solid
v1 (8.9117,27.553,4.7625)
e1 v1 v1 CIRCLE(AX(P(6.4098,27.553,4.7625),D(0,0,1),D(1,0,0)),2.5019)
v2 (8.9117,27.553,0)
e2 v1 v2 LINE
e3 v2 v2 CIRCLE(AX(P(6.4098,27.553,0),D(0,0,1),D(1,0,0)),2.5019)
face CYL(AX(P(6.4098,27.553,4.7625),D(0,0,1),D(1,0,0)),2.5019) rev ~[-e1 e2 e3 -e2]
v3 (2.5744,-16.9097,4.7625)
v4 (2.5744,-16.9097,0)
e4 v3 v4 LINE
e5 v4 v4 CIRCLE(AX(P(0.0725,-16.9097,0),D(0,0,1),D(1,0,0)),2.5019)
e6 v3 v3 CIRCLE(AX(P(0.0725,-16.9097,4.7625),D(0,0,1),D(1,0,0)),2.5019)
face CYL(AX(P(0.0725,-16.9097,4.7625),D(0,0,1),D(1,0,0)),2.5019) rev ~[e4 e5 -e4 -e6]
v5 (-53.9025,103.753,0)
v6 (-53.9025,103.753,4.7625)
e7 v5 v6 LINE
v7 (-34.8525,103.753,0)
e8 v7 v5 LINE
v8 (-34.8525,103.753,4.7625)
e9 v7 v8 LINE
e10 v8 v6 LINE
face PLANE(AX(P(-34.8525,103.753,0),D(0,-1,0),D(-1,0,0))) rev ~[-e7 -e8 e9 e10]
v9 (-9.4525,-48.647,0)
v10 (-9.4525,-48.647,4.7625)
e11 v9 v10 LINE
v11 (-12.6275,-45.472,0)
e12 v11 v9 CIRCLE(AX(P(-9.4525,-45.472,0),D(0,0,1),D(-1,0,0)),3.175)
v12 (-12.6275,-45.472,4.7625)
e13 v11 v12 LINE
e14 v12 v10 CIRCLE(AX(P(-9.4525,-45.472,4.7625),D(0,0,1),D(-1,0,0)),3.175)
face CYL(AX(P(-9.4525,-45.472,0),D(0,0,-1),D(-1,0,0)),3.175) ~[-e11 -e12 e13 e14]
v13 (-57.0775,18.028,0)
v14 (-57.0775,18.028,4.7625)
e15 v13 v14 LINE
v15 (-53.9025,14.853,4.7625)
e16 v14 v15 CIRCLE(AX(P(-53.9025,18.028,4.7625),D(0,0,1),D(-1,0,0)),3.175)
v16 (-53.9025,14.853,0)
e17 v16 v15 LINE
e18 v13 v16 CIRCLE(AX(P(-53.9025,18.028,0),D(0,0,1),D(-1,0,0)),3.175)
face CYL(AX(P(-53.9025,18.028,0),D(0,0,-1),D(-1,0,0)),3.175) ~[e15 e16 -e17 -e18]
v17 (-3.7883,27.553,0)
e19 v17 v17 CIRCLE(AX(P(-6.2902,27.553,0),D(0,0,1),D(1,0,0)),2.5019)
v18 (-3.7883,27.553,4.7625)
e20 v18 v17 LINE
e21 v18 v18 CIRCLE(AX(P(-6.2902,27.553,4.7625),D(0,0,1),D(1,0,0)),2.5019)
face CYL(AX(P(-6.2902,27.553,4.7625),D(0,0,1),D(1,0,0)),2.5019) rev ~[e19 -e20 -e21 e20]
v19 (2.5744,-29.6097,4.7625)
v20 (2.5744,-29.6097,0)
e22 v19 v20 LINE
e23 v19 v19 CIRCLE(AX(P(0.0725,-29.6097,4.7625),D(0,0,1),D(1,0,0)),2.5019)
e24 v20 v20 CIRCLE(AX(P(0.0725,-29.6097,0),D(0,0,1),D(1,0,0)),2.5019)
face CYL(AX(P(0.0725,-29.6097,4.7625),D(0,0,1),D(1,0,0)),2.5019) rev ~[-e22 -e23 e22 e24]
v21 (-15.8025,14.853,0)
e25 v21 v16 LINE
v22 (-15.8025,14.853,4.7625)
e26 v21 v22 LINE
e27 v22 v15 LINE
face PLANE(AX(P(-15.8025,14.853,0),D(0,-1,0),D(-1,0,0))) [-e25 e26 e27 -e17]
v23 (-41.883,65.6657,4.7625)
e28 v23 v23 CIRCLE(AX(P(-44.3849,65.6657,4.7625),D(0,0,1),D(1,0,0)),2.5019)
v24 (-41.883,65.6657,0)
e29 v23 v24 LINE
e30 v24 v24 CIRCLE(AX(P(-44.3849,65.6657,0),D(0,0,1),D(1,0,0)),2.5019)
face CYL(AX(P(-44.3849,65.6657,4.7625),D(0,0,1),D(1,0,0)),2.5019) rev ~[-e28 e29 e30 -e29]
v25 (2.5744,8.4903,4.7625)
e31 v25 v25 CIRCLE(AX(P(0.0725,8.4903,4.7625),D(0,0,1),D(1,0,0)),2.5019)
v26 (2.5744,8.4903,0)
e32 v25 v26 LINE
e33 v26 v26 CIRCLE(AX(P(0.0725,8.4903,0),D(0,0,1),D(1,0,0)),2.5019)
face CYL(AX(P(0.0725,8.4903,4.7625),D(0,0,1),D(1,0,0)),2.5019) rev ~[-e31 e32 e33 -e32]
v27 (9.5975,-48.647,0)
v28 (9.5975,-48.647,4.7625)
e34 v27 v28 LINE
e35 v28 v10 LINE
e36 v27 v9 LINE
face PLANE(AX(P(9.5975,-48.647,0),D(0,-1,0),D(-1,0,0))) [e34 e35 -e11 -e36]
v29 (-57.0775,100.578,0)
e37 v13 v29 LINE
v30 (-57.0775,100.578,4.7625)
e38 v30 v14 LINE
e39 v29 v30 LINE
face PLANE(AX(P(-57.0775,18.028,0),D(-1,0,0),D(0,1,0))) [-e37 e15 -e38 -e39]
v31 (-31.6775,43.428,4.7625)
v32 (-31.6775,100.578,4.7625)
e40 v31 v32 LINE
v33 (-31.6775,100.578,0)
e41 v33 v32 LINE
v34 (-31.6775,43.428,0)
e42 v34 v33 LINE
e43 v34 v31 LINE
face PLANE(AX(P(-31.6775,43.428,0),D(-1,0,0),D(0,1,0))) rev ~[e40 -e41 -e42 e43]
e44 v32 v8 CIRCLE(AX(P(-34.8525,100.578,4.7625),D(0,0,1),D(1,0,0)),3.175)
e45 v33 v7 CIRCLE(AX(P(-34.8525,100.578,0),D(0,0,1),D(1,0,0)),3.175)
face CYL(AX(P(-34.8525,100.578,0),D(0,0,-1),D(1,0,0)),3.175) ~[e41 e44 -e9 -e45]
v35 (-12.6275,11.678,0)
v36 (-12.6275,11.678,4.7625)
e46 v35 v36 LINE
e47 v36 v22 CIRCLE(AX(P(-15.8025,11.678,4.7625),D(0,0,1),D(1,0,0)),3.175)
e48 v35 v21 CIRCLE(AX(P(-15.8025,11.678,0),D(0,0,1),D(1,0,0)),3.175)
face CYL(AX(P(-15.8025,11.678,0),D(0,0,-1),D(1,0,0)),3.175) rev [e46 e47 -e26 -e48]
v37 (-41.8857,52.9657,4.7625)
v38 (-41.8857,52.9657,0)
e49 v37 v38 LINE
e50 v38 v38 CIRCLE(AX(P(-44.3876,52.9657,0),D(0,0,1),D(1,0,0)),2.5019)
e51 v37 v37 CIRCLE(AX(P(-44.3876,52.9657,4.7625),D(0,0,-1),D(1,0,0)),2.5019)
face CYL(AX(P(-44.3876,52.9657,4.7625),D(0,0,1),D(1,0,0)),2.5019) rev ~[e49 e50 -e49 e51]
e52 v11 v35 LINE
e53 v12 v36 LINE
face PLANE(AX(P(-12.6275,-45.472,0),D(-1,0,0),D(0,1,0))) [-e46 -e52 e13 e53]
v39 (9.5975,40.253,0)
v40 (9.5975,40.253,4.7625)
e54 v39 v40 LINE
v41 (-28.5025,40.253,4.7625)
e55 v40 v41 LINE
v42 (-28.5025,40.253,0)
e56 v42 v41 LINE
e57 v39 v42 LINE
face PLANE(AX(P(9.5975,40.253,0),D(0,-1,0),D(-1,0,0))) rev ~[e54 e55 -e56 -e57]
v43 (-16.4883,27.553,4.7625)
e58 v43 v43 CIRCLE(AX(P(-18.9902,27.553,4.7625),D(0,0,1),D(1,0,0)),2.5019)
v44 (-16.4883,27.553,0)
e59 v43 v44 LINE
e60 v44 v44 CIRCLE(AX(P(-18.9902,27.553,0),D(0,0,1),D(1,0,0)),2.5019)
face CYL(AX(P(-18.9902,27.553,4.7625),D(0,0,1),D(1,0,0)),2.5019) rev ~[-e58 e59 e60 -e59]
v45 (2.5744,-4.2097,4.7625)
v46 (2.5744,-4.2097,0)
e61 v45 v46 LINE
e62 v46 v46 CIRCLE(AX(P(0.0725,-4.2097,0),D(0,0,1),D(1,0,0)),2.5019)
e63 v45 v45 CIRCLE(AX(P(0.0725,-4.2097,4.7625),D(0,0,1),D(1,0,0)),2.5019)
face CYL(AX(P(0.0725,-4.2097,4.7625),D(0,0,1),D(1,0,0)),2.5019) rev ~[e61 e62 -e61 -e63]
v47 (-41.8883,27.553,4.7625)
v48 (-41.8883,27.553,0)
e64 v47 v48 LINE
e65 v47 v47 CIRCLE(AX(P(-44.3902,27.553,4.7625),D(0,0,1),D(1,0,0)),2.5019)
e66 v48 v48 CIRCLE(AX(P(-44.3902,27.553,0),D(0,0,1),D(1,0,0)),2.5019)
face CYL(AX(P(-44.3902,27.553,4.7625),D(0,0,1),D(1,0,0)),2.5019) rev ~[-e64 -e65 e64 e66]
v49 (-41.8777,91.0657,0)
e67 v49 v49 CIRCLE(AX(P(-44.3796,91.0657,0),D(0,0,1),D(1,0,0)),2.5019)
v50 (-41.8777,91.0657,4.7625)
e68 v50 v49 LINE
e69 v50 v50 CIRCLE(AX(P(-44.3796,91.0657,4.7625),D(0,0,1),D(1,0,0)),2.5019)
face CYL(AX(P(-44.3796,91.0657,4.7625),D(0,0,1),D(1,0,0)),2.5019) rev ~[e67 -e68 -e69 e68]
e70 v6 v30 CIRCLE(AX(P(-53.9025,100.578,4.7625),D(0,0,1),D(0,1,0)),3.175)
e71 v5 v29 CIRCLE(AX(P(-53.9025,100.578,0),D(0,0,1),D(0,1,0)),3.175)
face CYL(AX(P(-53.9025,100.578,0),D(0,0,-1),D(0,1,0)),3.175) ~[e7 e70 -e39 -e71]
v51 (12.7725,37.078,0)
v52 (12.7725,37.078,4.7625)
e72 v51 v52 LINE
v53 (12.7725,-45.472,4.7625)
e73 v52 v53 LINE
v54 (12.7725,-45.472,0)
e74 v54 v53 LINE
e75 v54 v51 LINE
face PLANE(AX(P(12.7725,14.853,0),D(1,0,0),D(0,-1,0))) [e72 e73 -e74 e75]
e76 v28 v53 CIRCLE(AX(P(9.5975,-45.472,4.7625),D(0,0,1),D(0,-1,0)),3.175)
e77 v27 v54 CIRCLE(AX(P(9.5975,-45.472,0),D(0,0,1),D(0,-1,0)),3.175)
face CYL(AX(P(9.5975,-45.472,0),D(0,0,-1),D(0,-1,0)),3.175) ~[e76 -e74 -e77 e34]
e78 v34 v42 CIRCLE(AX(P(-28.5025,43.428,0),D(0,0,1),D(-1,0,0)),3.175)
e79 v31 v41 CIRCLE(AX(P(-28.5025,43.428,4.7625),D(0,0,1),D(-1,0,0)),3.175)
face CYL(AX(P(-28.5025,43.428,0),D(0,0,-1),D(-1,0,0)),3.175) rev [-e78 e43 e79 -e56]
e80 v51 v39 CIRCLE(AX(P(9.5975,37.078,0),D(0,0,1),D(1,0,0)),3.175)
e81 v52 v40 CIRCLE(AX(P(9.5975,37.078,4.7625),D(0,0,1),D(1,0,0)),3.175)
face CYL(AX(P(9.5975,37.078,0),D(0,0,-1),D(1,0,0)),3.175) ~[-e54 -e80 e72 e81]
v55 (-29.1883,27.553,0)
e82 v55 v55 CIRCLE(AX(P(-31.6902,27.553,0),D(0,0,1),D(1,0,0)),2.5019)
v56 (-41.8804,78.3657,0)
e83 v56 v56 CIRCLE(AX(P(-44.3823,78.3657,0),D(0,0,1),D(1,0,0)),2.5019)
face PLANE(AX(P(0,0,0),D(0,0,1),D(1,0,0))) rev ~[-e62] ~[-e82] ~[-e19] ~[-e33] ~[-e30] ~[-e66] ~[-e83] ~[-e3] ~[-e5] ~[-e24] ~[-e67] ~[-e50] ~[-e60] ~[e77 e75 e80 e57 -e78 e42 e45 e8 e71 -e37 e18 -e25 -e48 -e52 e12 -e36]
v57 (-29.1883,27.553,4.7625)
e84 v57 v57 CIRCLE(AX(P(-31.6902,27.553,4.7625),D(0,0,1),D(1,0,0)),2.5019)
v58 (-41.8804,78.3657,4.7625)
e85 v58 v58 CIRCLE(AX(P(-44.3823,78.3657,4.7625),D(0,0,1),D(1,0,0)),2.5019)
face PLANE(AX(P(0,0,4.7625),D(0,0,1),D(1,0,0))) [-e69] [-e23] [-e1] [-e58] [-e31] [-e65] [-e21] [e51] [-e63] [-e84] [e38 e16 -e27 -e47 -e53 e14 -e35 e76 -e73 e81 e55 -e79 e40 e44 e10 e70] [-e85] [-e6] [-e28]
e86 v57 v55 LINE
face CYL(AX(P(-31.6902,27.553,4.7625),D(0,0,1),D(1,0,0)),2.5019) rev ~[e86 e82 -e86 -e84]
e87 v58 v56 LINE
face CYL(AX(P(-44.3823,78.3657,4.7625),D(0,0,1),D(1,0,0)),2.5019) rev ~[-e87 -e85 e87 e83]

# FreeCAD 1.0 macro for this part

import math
import FreeCAD as App
import Part
import Sketcher
from FreeCAD import Vector
Q = App.Units.Quantity

doc = App.newDocument("Part")
params = doc.addObject("Spreadsheet::Sheet", "Params")
for row, (alias, value) in enumerate([
    ("sketch1_radius", "0.125 in"),
    ("pad1_length", "0.1875 in"),
    ("sketch2_diameter", "0.197 in"),
], start=1):
    params.set(f"A{row}", alias)
    params.set(f"B{row}", "=" + value)
    params.setAlias(f"B{row}", alias)

body = doc.addObject("PartDesign::Body", "Body")

# Sketch on XY plane
sketch1 = body.newObject("Sketcher::SketchObject", "Sketch")
sketch1.AttachmentSupport = (doc.getObject("XY_Plane"), [""])
sketch1.MapMode = "FlatFace"
sketch1.addGeometry(Part.LineSegment(Vector(12.7725, -45.472, 0), Vector(12.7725, 37.078, 0)), False)
sketch1.addGeometry(Part.ArcOfCircle(Part.Circle(Vector(9.5975, 37.078, 0), Vector(0, 0, 1), 3.175), math.radians(0), math.radians(90)), False)
sketch1.addGeometry(Part.LineSegment(Vector(9.5975, 40.253, 0), Vector(-28.5025, 40.253, 0)), False)
sketch1.addGeometry(Part.ArcOfCircle(Part.Circle(Vector(-28.5025, 43.428, 0), Vector(0, 0, 1), 3.175), math.radians(180), math.radians(270)), False)
sketch1.addGeometry(Part.LineSegment(Vector(-31.6775, 43.428, 0), Vector(-31.6775, 100.578, 0)), False)
sketch1.addGeometry(Part.ArcOfCircle(Part.Circle(Vector(-34.8525, 100.578, 0), Vector(0, 0, 1), 3.175), math.radians(0), math.radians(90)), False)
sketch1.addGeometry(Part.LineSegment(Vector(-34.8525, 103.753, 0), Vector(-53.9025, 103.753, 0)), False)
sketch1.addGeometry(Part.ArcOfCircle(Part.Circle(Vector(-53.9025, 100.578, 0), Vector(0, 0, 1), 3.175), math.radians(90), math.radians(180)), False)
sketch1.addGeometry(Part.LineSegment(Vector(-57.0775, 100.578, 0), Vector(-57.0775, 18.028, 0)), False)
sketch1.addGeometry(Part.ArcOfCircle(Part.Circle(Vector(-53.9025, 18.028, 0), Vector(0, 0, 1), 3.175), math.radians(180), math.radians(270)), False)
sketch1.addGeometry(Part.LineSegment(Vector(-53.9025, 14.853, 0), Vector(-15.8025, 14.853, 0)), False)
sketch1.addGeometry(Part.ArcOfCircle(Part.Circle(Vector(-15.8025, 11.678, 0), Vector(0, 0, 1), 3.175), math.radians(0), math.radians(90)), False)
sketch1.addGeometry(Part.LineSegment(Vector(-12.6275, 11.678, 0), Vector(-12.6275, -45.472, 0)), False)
sketch1.addGeometry(Part.ArcOfCircle(Part.Circle(Vector(-9.4525, -45.472, 0), Vector(0, 0, 1), 3.175), math.radians(180), math.radians(270)), False)
sketch1.addGeometry(Part.LineSegment(Vector(-9.4525, -48.647, 0), Vector(9.5975, -48.647, 0)), False)
sketch1.addGeometry(Part.ArcOfCircle(Part.Circle(Vector(9.5975, -45.472, 0), Vector(0, 0, 1), 3.175), math.radians(-90), math.radians(0)), False)
sketch1.addConstraint(Sketcher.Constraint("Tangent", 0, 2, 1, 1))
sketch1.addConstraint(Sketcher.Constraint("Tangent", 1, 2, 2, 1))
sketch1.addConstraint(Sketcher.Constraint("Tangent", 2, 2, 3, 2))
sketch1.addConstraint(Sketcher.Constraint("Tangent", 3, 1, 4, 1))
sketch1.addConstraint(Sketcher.Constraint("Tangent", 4, 2, 5, 1))
sketch1.addConstraint(Sketcher.Constraint("Tangent", 5, 2, 6, 1))
sketch1.addConstraint(Sketcher.Constraint("Tangent", 6, 2, 7, 1))
sketch1.addConstraint(Sketcher.Constraint("Tangent", 7, 2, 8, 1))
sketch1.addConstraint(Sketcher.Constraint("Tangent", 8, 2, 9, 1))
sketch1.addConstraint(Sketcher.Constraint("Tangent", 9, 2, 10, 1))
sketch1.addConstraint(Sketcher.Constraint("Tangent", 10, 2, 11, 2))
sketch1.addConstraint(Sketcher.Constraint("Tangent", 11, 1, 12, 1))
sketch1.addConstraint(Sketcher.Constraint("Tangent", 12, 2, 13, 1))
sketch1.addConstraint(Sketcher.Constraint("Tangent", 13, 2, 14, 1))
sketch1.addConstraint(Sketcher.Constraint("Tangent", 14, 2, 15, 1))
sketch1.addConstraint(Sketcher.Constraint("Tangent", 15, 2, 0, 1))
sketch1.addConstraint(Sketcher.Constraint("Vertical", 0))
sketch1.addConstraint(Sketcher.Constraint("Horizontal", 2))
sketch1.addConstraint(Sketcher.Constraint("Vertical", 4))
sketch1.addConstraint(Sketcher.Constraint("Horizontal", 6))
sketch1.addConstraint(Sketcher.Constraint("Vertical", 8))
sketch1.addConstraint(Sketcher.Constraint("Horizontal", 10))
sketch1.addConstraint(Sketcher.Constraint("Vertical", 12))
sketch1.addConstraint(Sketcher.Constraint("Horizontal", 14))
sketch1.addConstraint(Sketcher.Constraint("Equal", 1, 3))
sketch1.addConstraint(Sketcher.Constraint("Equal", 3, 5))
sketch1.addConstraint(Sketcher.Constraint("Equal", 5, 7))
sketch1.addConstraint(Sketcher.Constraint("Equal", 7, 9))
sketch1.addConstraint(Sketcher.Constraint("Equal", 9, 11))
sketch1.addConstraint(Sketcher.Constraint("Equal", 11, 13))
sketch1.addConstraint(Sketcher.Constraint("Equal", 13, 15))
sketch1.addConstraint(Sketcher.Constraint("Equal", 2, 10))
sketch1.addConstraint(Sketcher.Constraint("Equal", 0, 8))
sketch1.addConstraint(Sketcher.Constraint("Radius", 1, Q("0.125 in")))
sketch1.addConstraint(Sketcher.Constraint("DistanceX", 7, 3, 3, 3, Q("1 in")))
sketch1.addConstraint(Sketcher.Constraint("DistanceY", 9, 3, 3, 3, Q("1 in")))
sketch1.addConstraint(Sketcher.Constraint("DistanceX", 5, 3, 13, 3, Q("1 in")))
sketch1.addConstraint(Sketcher.Constraint("DistanceY", 1, 3, 5, 3, Q("2.5 in")))
sketch1.addConstraint(Sketcher.Constraint("DistanceX", -1, 1, 1, 3, Q("9.5975 mm")))
sketch1.addConstraint(Sketcher.Constraint("DistanceY", -1, 1, 1, 3, Q("37.078 mm")))
sketch1.setExpression("Constraints[33]", "Params.sketch1_radius")
pad1 = body.newObject("PartDesign::Pad", "Pad")
pad1.Profile = sketch1
pad1.setExpression("Length", "Params.pad1_length")

# Sketch on XY plane
sketch2 = body.newObject("Sketcher::SketchObject", "Sketch001")
sketch2.AttachmentSupport = (doc.getObject("XY_Plane"), [""])
sketch2.MapMode = "FlatFace"
sketch2.AttachmentOffset = App.Placement(Vector(0, 0, 0.1875 * 25.4), App.Rotation())
sketch2.addGeometry(Part.Circle(Vector(6.4098, 27.553, 0), Vector(0, 0, 1), 2.5019), False)
sketch2.addGeometry(Part.Circle(Vector(0.0725, 8.4903, 0), Vector(0, 0, 1), 2.5019), False)
sketch2.addGeometry(Part.Circle(Vector(0.0725, -16.9097, 0), Vector(0, 0, 1), 2.5019), False)
sketch2.addGeometry(Part.Circle(Vector(0.0725, -4.2097, 0), Vector(0, 0, 1), 2.5019), False)
sketch2.addGeometry(Part.Circle(Vector(0.0725, -29.6097, 0), Vector(0, 0, 1), 2.5019), False)
sketch2.addGeometry(Part.Circle(Vector(-6.2902, 27.553, 0), Vector(0, 0, 1), 2.5019), False)
sketch2.addGeometry(Part.Circle(Vector(-18.9902, 27.553, 0), Vector(0, 0, 1), 2.5019), False)
sketch2.addGeometry(Part.Circle(Vector(-31.6902, 27.553, 0), Vector(0, 0, 1), 2.5019), False)
sketch2.addGeometry(Part.Circle(Vector(-44.3902, 27.553, 0), Vector(0, 0, 1), 2.5019), False)
sketch2.addGeometry(Part.Circle(Vector(-44.3876, 52.9657, 0), Vector(0, 0, 1), 2.5019), False)
sketch2.addGeometry(Part.Circle(Vector(-44.3849, 65.6657, 0), Vector(0, 0, 1), 2.5019), False)
sketch2.addGeometry(Part.Circle(Vector(-44.3823, 78.3657, 0), Vector(0, 0, 1), 2.5019), False)
sketch2.addGeometry(Part.Circle(Vector(-44.3796, 91.0657, 0), Vector(0, 0, 1), 2.5019), False)
sketch2.addConstraint(Sketcher.Constraint("Equal", 0, 1))
sketch2.addConstraint(Sketcher.Constraint("Equal", 1, 2))
sketch2.addConstraint(Sketcher.Constraint("Equal", 2, 3))
sketch2.addConstraint(Sketcher.Constraint("Equal", 3, 4))
sketch2.addConstraint(Sketcher.Constraint("Equal", 4, 5))
sketch2.addConstraint(Sketcher.Constraint("Equal", 5, 6))
sketch2.addConstraint(Sketcher.Constraint("Equal", 6, 7))
sketch2.addConstraint(Sketcher.Constraint("Equal", 7, 8))
sketch2.addConstraint(Sketcher.Constraint("Equal", 8, 9))
sketch2.addConstraint(Sketcher.Constraint("Equal", 9, 10))
sketch2.addConstraint(Sketcher.Constraint("Equal", 10, 11))
sketch2.addConstraint(Sketcher.Constraint("Equal", 11, 12))
sketch2.addConstraint(Sketcher.Constraint("Horizontal", 0, 3, 5, 3))
sketch2.addConstraint(Sketcher.Constraint("Horizontal", 5, 3, 6, 3))
sketch2.addConstraint(Sketcher.Constraint("Horizontal", 6, 3, 7, 3))
sketch2.addConstraint(Sketcher.Constraint("Horizontal", 7, 3, 8, 3))
sketch2.addConstraint(Sketcher.Constraint("Vertical", 1, 3, 2, 3))
sketch2.addConstraint(Sketcher.Constraint("Vertical", 2, 3, 3, 3))
sketch2.addConstraint(Sketcher.Constraint("Vertical", 3, 3, 4, 3))
sketch2.addConstraint(Sketcher.Constraint("Diameter", 0, Q("0.197 in")))
sketch2.addConstraint(Sketcher.Constraint("DistanceY", 2, 3, 1, 3, Q("1 in")))
sketch2.addConstraint(Sketcher.Constraint("DistanceY", 4, 3, 3, 3, Q("1 in")))
sketch2.addConstraint(Sketcher.Constraint("DistanceX", 6, 3, 0, 3, Q("1 in")))
sketch2.addConstraint(Sketcher.Constraint("DistanceX", 7, 3, 5, 3, Q("1 in")))
sketch2.addConstraint(Sketcher.Constraint("DistanceX", 8, 3, 6, 3, Q("1 in")))
sketch2.addConstraint(Sketcher.Constraint("DistanceY", 9, 3, 11, 3, Q("1 in")))
sketch2.addConstraint(Sketcher.Constraint("DistanceY", 10, 3, 12, 3, Q("1 in")))
sketch2.addConstraint(Sketcher.Constraint("DistanceY", 3, 3, 1, 3, Q("0.5 in")))
sketch2.addConstraint(Sketcher.Constraint("DistanceX", 5, 3, 0, 3, Q("0.5 in")))
sketch2.addConstraint(Sketcher.Constraint("DistanceY", 9, 3, 10, 3, Q("0.5 in")))
sketch2.addConstraint(Sketcher.Constraint("DistanceX", 1, 3, 0, 3, Q("0.2495 in")))
sketch2.addConstraint(Sketcher.Constraint("DistanceY", 1, 3, 0, 3, Q("0.7505 in")))
sketch2.addConstraint(Sketcher.Constraint("DistanceX", 8, 3, 9, 3, Q("0.0001 in")))
sketch2.addConstraint(Sketcher.Constraint("DistanceY", 8, 3, 9, 3, Q("1.0005 in")))
sketch2.addConstraint(Sketcher.Constraint("DistanceX", 9, 3, 10, 3, Q("0.0001 in")))
sketch2.addConstraint(Sketcher.Constraint("DistanceX", 10, 3, 11, 3, Q("0.0001 in")))
sketch2.addConstraint(Sketcher.Constraint("DistanceX", 11, 3, 12, 3, Q("0.0001 in")))
sketch2.addConstraint(Sketcher.Constraint("DistanceX", -1, 1, 0, 3, Q("6.4098 mm")))
sketch2.addConstraint(Sketcher.Constraint("DistanceY", -1, 1, 0, 3, Q("27.553 mm")))
sketch2.setExpression("Constraints[19]", "Params.sketch2_diameter")
pocket1 = body.newObject("PartDesign::Pocket", "Pocket")
pocket1.Profile = sketch2
pocket1.Type = "ThroughAll"

doc.recompute()
